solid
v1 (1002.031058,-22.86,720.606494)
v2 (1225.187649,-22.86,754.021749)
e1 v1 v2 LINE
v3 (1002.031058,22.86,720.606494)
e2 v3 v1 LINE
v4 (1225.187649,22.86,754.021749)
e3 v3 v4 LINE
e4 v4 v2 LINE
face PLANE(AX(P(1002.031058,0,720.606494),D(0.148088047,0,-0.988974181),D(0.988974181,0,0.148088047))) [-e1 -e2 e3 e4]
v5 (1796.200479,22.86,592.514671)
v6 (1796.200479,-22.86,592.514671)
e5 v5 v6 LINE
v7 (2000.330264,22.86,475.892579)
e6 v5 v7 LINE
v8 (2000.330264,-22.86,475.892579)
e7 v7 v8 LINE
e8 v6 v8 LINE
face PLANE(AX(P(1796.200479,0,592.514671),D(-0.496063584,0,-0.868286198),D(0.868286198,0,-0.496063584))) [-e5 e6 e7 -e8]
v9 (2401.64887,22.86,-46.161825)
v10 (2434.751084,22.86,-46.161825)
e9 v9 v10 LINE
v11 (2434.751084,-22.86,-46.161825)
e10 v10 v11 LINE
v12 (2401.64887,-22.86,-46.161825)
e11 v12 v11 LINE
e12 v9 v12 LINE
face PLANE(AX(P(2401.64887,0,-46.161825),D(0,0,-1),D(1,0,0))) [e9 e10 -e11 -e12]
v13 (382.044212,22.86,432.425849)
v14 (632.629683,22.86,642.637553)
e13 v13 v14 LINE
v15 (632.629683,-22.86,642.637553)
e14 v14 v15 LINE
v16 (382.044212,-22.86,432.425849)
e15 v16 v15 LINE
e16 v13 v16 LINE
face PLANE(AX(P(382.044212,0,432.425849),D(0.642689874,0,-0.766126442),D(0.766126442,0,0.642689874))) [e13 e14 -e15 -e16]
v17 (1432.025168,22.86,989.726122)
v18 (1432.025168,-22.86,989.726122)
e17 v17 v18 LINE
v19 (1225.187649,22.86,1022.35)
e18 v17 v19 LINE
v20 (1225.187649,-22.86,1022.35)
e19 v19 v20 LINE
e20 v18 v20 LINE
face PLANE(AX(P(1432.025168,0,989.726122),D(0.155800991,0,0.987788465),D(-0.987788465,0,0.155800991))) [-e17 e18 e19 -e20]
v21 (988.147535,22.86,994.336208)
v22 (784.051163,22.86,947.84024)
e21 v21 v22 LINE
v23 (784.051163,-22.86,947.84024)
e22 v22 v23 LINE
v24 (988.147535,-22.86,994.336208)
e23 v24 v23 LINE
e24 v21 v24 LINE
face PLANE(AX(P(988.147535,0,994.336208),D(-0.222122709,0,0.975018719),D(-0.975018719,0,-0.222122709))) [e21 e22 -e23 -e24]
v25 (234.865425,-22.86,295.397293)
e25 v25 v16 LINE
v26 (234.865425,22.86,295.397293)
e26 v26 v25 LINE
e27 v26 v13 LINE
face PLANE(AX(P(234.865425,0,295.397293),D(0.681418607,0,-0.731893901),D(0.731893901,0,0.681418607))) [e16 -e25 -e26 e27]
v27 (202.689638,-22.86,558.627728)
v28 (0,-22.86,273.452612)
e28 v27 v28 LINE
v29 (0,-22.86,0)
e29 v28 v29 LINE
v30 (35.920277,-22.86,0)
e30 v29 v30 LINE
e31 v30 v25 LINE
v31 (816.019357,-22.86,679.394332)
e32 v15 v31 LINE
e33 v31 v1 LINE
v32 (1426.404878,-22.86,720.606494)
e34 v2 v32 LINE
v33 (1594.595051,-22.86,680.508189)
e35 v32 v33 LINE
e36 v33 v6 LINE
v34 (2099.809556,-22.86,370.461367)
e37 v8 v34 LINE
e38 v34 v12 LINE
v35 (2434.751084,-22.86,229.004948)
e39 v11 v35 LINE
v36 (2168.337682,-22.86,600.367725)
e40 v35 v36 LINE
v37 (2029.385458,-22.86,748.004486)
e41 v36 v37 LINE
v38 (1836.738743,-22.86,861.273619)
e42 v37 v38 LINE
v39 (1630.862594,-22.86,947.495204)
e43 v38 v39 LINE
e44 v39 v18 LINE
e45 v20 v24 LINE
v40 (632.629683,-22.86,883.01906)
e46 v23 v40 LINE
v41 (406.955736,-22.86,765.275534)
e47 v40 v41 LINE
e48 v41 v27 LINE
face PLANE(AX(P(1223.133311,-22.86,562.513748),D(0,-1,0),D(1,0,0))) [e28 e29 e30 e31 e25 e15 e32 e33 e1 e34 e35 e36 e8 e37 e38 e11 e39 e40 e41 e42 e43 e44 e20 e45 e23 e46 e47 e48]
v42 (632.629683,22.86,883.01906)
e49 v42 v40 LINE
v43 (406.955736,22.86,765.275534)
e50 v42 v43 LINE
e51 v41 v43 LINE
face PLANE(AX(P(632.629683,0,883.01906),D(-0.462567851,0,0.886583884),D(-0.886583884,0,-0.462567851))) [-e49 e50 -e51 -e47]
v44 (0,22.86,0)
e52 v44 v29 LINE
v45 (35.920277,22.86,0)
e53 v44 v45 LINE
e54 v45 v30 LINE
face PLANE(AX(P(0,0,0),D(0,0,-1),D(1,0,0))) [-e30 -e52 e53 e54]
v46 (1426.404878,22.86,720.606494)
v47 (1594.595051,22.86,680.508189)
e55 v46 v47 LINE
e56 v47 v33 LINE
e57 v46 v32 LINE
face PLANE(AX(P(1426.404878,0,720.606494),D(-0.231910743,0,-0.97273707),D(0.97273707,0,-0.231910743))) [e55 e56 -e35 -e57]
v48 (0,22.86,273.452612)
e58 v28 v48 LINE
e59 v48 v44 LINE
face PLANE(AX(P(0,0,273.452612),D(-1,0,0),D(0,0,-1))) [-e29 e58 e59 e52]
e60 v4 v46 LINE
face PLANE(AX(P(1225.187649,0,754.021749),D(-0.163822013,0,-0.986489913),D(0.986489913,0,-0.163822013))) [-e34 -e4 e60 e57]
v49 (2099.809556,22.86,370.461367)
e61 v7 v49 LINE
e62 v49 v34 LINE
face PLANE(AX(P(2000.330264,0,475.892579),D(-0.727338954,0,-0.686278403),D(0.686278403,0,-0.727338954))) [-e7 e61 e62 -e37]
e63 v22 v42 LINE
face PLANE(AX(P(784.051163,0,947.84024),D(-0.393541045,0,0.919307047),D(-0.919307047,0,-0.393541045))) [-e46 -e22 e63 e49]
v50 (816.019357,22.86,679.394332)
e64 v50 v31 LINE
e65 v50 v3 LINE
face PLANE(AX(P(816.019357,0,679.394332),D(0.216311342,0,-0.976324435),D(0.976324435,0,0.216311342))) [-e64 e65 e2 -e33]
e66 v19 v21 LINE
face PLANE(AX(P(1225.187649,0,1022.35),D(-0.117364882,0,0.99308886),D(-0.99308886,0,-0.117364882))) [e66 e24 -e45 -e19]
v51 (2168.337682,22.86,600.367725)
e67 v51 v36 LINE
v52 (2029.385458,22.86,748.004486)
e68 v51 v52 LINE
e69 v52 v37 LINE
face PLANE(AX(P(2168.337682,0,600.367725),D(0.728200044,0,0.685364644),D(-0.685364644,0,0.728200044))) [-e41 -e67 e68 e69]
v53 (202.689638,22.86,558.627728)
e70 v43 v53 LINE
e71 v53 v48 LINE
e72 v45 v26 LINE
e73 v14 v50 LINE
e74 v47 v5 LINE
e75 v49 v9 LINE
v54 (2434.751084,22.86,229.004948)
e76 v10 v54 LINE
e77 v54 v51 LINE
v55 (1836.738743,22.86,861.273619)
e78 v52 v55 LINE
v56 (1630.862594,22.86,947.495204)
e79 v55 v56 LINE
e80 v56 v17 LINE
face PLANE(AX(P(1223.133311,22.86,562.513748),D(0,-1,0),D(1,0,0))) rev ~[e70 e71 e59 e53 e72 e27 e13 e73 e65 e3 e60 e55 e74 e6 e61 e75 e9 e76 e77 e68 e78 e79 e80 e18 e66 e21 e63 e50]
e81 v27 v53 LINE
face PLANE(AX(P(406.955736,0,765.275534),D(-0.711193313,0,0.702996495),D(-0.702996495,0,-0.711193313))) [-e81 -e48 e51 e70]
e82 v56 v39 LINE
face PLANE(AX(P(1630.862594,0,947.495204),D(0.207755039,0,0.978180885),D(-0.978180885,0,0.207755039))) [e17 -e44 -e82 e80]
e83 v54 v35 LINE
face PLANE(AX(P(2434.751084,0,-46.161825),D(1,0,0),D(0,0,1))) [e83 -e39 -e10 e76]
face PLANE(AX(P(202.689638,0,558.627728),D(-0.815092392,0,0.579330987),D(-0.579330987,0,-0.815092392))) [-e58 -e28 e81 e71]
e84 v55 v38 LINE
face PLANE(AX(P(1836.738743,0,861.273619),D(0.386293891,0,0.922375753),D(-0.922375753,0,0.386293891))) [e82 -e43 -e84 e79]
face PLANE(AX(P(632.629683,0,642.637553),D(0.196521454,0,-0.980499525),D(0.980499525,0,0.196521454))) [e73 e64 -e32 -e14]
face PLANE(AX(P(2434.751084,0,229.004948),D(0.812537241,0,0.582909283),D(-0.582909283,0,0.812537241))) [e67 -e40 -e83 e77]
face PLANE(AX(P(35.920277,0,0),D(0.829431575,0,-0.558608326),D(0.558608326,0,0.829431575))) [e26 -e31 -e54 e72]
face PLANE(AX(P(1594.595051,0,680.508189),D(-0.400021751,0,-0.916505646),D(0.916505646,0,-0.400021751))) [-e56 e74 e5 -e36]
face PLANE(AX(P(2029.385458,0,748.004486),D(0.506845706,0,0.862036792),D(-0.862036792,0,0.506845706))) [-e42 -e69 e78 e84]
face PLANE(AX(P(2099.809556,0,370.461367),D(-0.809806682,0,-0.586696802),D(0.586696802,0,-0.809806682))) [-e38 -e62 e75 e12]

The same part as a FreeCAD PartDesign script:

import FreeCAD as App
import Part
import Sketcher
Q = App.Units.Quantity


def add_polygon(sketch, points):
    """Adds a closed chain of lines whose ends are joined by coincident constraints."""
    first, n = sketch.GeometryCount, len(points)
    for a, b in zip(points, points[1:] + points[:1]):
        sketch.addGeometry(Part.LineSegment(App.Vector(*a, 0), App.Vector(*b, 0)), False)
    for i in range(n):
        sketch.addConstraint(Sketcher.Constraint("Coincident", first + i, 2, first + (i + 1) % n, 1))

doc = App.newDocument("Part")
params = doc.addObject("Spreadsheet::Sheet", "Params")
for row, (alias, value) in enumerate([
    ("pad1_length", "1.8 in"),
], start=1):
    params.set(f"A{row}", alias)
    params.set(f"B{row}", "=" + value)
    params.setAlias(f"B{row}", alias)

body = doc.addObject("PartDesign::Body", "Body")

# Sketch on XZ plane
sketch1 = doc.addObject("Sketcher::SketchObject", "Sketch")
body.addObject(sketch1)
sketch1.AttachmentSupport = (doc.XZ_Plane, [""])
sketch1.MapMode = "FlatFace"
add_polygon(sketch1, [(0, 273), (0, 0), (36, 0), (235, 295), (382, 432), (633, 643), (816, 679), (1002, 721), (1225, 754), (1426, 721), (1595, 681), (1796, 593), (2000, 476), (2100, 370), (2402, -46), (2435, -46), (2435, 229), (2168, 600), (2029, 748), (1837, 861), (1631, 947), (1432, 990), (1225, 1022), (988, 994), (784, 948), (633, 883), (407, 765), (203, 559)])  # lines 0-27
sketch1.addConstraint([
    Sketcher.Constraint("Vertical", 0),
    Sketcher.Constraint("Horizontal", 1),
    Sketcher.Constraint("Horizontal", 14),
    Sketcher.Constraint("Vertical", 15),
    Sketcher.Constraint("Coincident", 0, 2, -1, 1),
    Sketcher.Constraint("Horizontal", 6, 2, 8, 2),
    Sketcher.Constraint("Vertical", 7, 2, 21, 2),
    Sketcher.Constraint("Vertical", 4, 2, 24, 2),
    Sketcher.Constraint("DistanceY", -1, 1, 21, 2, Q("40.25 in")),
    Sketcher.Constraint("DistanceX", 5, 2, 22, 2, Q("6.7766999 in")),
    Sketcher.Constraint("DistanceY", 0, 2, 0, 1, 273.452612),
    Sketcher.Constraint("DistanceX", 5, 2, 6, 2, 186.011701),
    Sketcher.Constraint("DistanceY", 2, 2, 6, 2, 425.209202),
    Sketcher.Constraint("DistanceY", 3, 2, 7, 2, 321.5959),
    Sketcher.Constraint("DistanceX", 7, 2, 9, 2, 369.407402),
    Sketcher.Constraint("DistanceX", 8, 2, 10, 2, 369.795601),
    Sketcher.Constraint("DistanceX", 16, 2, 15, 2, 266.413402),
    Sketcher.Constraint("DistanceY", 5, 2, 25, 2, 85.881201),
    Sketcher.Constraint("Distance", 4, 327.081089),
    Sketcher.Constraint("Distance", 8, 203.972921),
    Sketcher.Constraint("Distance", 16, 457.040931),
    Sketcher.Constraint("Distance", 18, 223.47853),
    Sketcher.Constraint("Distance", 19, 223.202039),
    Sketcher.Constraint("Distance", 24, 164.712628),
    Sketcher.Constraint("Distance", 26, 290.564888),
    Sketcher.Constraint("DistanceX", 1, 1, 1, 2, 35.920277),
    Sketcher.Constraint("DistanceX", 14, 1, 14, 2, 33.102214),
    Sketcher.Constraint("DistanceY", 15, 1, 15, 2, 275.166773),
    Sketcher.Constraint("DistanceY", -1, 1, 3, 2, 432.425849),
    Sketcher.Constraint("DistanceX", -1, 1, 7, 2, 1225.187649),
    Sketcher.Constraint("DistanceX", -1, 1, 8, 2, 1426.404878),
    Sketcher.Constraint("DistanceY", -1, 1, 9, 2, 680.508189),
    Sketcher.Constraint("DistanceY", -1, 1, 10, 2, 592.514671),
    Sketcher.Constraint("DistanceY", -1, 1, 11, 2, 475.892579),
    Sketcher.Constraint("DistanceX", -1, 1, 13, 2, 2401.64887),
    Sketcher.Constraint("DistanceY", -1, 1, 15, 2, 229.004948),
    Sketcher.Constraint("DistanceY", -1, 1, 18, 2, 861.273619),
    Sketcher.Constraint("DistanceY", -1, 1, 23, 2, 947.84024),
    Sketcher.Constraint("DistanceY", -1, 1, 24, 2, 883.01906),
    Sketcher.Constraint("DistanceX", 3, 2, 4, 2, 250.585471),
    Sketcher.Constraint("DistanceX", 2, 2, 4, 2, 397.764258),
    Sketcher.Constraint("DistanceY", 4, 2, 5, 2, 36.75678),
    Sketcher.Constraint("DistanceX", 2, 2, 5, 2, 581.153932),
    Sketcher.Constraint("DistanceX", 1, 2, 5, 2, 780.09908),
    Sketcher.Constraint("DistanceX", 11, 2, 12, 2, 99.479292),
    Sketcher.Constraint("DistanceY", 13, 2, 12, 2, 416.623191),
    Sketcher.Constraint("DistanceX", 12, 2, 14, 2, 334.941528),
    Sketcher.Constraint("DistanceY", 16, 2, 17, 2, 147.636761),
    Sketcher.Constraint("DistanceX", 10, 2, 17, 2, 233.184979),
    Sketcher.Constraint("DistanceX", 19, 2, 18, 2, 205.876149),
    Sketcher.Constraint("DistanceY", 19, 2, 20, 2, 42.230919),
    Sketcher.Constraint("DistanceX", 8, 2, 20, 2, 5.620289),
    Sketcher.Constraint("DistanceY", 7, 2, 22, 2, 240.314459),
    Sketcher.Constraint("DistanceX", 25, 2, 5, 2, 409.063621),
    Sketcher.Constraint("DistanceY", 3, 2, 26, 2, 126.201879),
])
pad1 = doc.addObject("PartDesign::Pad", "Pad")
body.addObject(pad1)
pad1.Profile = sketch1
pad1.setExpression("Length", "Params.pad1_length")
pad1.Midplane = True

doc.recompute()
